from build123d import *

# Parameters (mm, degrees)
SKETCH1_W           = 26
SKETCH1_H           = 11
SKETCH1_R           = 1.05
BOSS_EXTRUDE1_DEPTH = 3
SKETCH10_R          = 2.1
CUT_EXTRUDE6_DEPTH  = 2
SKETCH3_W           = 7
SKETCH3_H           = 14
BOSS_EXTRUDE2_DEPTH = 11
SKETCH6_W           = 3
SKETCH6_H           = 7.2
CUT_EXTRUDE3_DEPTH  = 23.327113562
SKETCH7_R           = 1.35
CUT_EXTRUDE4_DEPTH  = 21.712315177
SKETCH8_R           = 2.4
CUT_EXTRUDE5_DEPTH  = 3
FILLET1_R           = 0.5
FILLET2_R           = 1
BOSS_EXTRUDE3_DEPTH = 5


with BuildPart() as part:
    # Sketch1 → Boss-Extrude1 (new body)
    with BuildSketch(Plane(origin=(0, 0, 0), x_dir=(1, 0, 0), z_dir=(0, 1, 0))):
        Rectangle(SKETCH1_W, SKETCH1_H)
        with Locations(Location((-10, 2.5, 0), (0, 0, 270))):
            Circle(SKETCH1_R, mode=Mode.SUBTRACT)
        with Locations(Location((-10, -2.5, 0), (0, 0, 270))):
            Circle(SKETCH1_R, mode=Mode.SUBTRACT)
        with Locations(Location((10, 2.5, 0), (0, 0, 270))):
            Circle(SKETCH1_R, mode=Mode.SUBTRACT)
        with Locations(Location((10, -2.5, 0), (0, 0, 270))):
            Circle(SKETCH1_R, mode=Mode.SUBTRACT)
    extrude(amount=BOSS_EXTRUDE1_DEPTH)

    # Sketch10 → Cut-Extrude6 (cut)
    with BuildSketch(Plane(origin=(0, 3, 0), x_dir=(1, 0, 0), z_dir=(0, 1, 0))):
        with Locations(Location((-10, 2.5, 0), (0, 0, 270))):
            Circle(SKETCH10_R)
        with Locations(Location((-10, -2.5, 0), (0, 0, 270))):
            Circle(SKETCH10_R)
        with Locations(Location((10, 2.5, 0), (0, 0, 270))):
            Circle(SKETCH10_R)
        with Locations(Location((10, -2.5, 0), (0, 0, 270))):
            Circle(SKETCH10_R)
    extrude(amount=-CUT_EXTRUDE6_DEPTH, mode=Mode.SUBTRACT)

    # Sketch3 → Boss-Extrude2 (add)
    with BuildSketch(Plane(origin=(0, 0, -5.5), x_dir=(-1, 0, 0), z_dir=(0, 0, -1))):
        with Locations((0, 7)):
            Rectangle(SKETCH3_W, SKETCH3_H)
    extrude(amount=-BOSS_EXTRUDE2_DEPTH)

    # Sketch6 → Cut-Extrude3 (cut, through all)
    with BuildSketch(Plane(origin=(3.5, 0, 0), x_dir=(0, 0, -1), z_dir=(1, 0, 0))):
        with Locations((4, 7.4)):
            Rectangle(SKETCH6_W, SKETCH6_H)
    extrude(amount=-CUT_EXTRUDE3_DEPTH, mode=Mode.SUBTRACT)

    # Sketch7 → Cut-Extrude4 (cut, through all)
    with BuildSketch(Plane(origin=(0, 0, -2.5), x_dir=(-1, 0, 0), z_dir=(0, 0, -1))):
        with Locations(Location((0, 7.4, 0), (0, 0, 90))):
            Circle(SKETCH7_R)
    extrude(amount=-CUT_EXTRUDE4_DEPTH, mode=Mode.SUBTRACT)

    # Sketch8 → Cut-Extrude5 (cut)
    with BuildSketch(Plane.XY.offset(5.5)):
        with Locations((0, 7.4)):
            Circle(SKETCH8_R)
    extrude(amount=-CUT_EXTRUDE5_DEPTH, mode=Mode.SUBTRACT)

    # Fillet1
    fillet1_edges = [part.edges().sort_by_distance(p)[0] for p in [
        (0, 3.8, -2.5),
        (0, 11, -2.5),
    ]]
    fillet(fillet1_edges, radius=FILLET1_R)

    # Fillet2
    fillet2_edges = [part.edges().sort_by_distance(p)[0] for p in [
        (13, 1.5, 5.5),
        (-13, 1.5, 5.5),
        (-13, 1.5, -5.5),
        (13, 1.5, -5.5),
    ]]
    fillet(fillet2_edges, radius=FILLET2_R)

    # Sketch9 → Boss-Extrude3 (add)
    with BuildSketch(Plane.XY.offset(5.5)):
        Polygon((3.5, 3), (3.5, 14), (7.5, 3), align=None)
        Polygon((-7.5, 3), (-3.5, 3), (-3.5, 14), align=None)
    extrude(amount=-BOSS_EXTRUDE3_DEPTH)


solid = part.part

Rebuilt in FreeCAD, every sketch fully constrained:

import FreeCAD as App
import Part
import Sketcher

V = App.Vector


def edges_at(feature, points):
    """Names of the edges that pass closest to the given points."""
    edges = feature.Shape.Edges
    near = lambda p: min(range(len(edges)), key=lambda i: edges[i].distToShape(Part.Vertex(*p))[0])
    return sorted({f"Edge{near(p) + 1}" for p in points})

doc = App.newDocument("Part")
body = doc.addObject("PartDesign::Body", "Body")

# Sketch on XZ plane
sketch1 = body.newObject("Sketcher::SketchObject", "Sketch")
sketch1.AttachmentSupport = (doc.getObject("XZ_Plane"), [""])
sketch1.MapMode = "FlatFace"
sketch1.addGeometry(Part.LineSegment(V(-13, -5.5, 0), V(-13, 5.5, 0)), False)
sketch1.addGeometry(Part.LineSegment(V(-13, 5.5, 0), V(13, 5.5, 0)), False)
sketch1.addGeometry(Part.LineSegment(V(13, 5.5, 0), V(13, -5.5, 0)), False)
sketch1.addGeometry(Part.LineSegment(V(13, -5.5, 0), V(-13, -5.5, 0)), False)
sketch1.addGeometry(Part.Circle(V(-10, 2.5, 0), V(0, 0, 1), 1.1), False)
sketch1.addGeometry(Part.Circle(V(10, 2.5, 0), V(0, 0, 1), 1.1), False)
sketch1.addGeometry(Part.Circle(V(-10, -2.5, 0), V(0, 0, 1), 1.1), False)
sketch1.addGeometry(Part.Circle(V(10, -2.5, 0), V(0, 0, 1), 1.1), False)
sketch1.addConstraint(Sketcher.Constraint("Coincident", 0, 2, 1, 1))
sketch1.addConstraint(Sketcher.Constraint("Coincident", 1, 2, 2, 1))
sketch1.addConstraint(Sketcher.Constraint("Coincident", 2, 2, 3, 1))
sketch1.addConstraint(Sketcher.Constraint("Coincident", 3, 2, 0, 1))
sketch1.addConstraint(Sketcher.Constraint("Vertical", 0))
sketch1.addConstraint(Sketcher.Constraint("Horizontal", 1))
sketch1.addConstraint(Sketcher.Constraint("Vertical", 2))
sketch1.addConstraint(Sketcher.Constraint("Horizontal", 3))
sketch1.addConstraint(Sketcher.Constraint("Equal", 4, 5))
sketch1.addConstraint(Sketcher.Constraint("Equal", 5, 6))
sketch1.addConstraint(Sketcher.Constraint("Equal", 6, 7))
sketch1.addConstraint(Sketcher.Constraint("Symmetric", 5, 3, 6, 3, -1, 1))
sketch1.addConstraint(Sketcher.Constraint("Symmetric", 4, 3, 7, 3, -1, 1))
sketch1.addConstraint(Sketcher.Constraint("Symmetric", 0, 2, 2, 2, -1, 1))
sketch1.addConstraint(Sketcher.Constraint("Symmetric", 4, 3, 5, 3, -2))
sketch1.addConstraint(Sketcher.Constraint("Diameter", 4, 2.1))
sketch1.addConstraint(Sketcher.Constraint("DistanceX", 1, 1, 1, 2, 26.0))
sketch1.addConstraint(Sketcher.Constraint("DistanceY", 0, 1, 0, 2, 11.0))
sketch1.addConstraint(Sketcher.Constraint("DistanceX", 4, 3, -1, 1, 10.0))
sketch1.addConstraint(Sketcher.Constraint("DistanceY", 6, 3, 4, 3, 5.0))
pad1 = body.newObject("PartDesign::Pad", "Pad")
pad1.Profile = sketch1
pad1.Length = 3
pad1.Reversed = True

# Sketch on XZ plane
sketch2 = body.newObject("Sketcher::SketchObject", "Sketch001")
sketch2.AttachmentSupport = (doc.getObject("XZ_Plane"), [""])
sketch2.MapMode = "FlatFace"
sketch2.AttachmentOffset = App.Placement(V(0, 0, -3), App.Rotation())
sketch2.addGeometry(Part.Circle(V(-10, -2.5, 0), V(0, 0, 1), 2.1), False)
sketch2.addGeometry(Part.Circle(V(-10, 2.5, 0), V(0, 0, 1), 2.1), False)
sketch2.addGeometry(Part.Circle(V(10, -2.5, 0), V(0, 0, 1), 2.1), False)
sketch2.addGeometry(Part.Circle(V(10, 2.5, 0), V(0, 0, 1), 2.1), False)
sketch2.addConstraint(Sketcher.Constraint("Equal", 0, 1))
sketch2.addConstraint(Sketcher.Constraint("Equal", 1, 2))
sketch2.addConstraint(Sketcher.Constraint("Equal", 2, 3))
sketch2.addConstraint(Sketcher.Constraint("Symmetric", 1, 3, 2, 3, -1, 1))
sketch2.addConstraint(Sketcher.Constraint("Symmetric", 0, 3, 3, 3, -1, 1))
sketch2.addConstraint(Sketcher.Constraint("Symmetric", 0, 3, 2, 3, -2))
sketch2.addConstraint(Sketcher.Constraint("Diameter", 0, 4.2))
sketch2.addConstraint(Sketcher.Constraint("DistanceX", 0, 3, -1, 1, 10.0))
sketch2.addConstraint(Sketcher.Constraint("DistanceY", 0, 3, 1, 3, 5.0))
pocket1 = body.newObject("PartDesign::Pocket", "Pocket")
pocket1.Profile = sketch2
pocket1.Length = 2
pocket1.Reversed = True

# Sketch on XY plane
sketch3 = body.newObject("Sketcher::SketchObject", "Sketch002")
sketch3.AttachmentSupport = (doc.getObject("XY_Plane"), [""])
sketch3.MapMode = "FlatFace"
sketch3.AttachmentOffset = App.Placement(V(0, 0, -5.5), App.Rotation())
sketch3.addGeometry(Part.LineSegment(V(4, 14, 0), V(4, 0, 0)), False)
sketch3.addGeometry(Part.LineSegment(V(4, 0, 0), V(-4, 0, 0)), False)
sketch3.addGeometry(Part.LineSegment(V(-4, 0, 0), V(-4, 14, 0)), False)
sketch3.addGeometry(Part.LineSegment(V(-4, 14, 0), V(4, 14, 0)), False)
sketch3.addConstraint(Sketcher.Constraint("Coincident", 0, 2, 1, 1))
sketch3.addConstraint(Sketcher.Constraint("Coincident", 1, 2, 2, 1))
sketch3.addConstraint(Sketcher.Constraint("Coincident", 2, 2, 3, 1))
sketch3.addConstraint(Sketcher.Constraint("Coincident", 3, 2, 0, 1))
sketch3.addConstraint(Sketcher.Constraint("Vertical", 0))
sketch3.addConstraint(Sketcher.Constraint("Horizontal", 1))
sketch3.addConstraint(Sketcher.Constraint("Vertical", 2))
sketch3.addConstraint(Sketcher.Constraint("Horizontal", 3))
sketch3.addConstraint(Sketcher.Constraint("Symmetric", 0, 2, 1, 2, -1, 1))
sketch3.addConstraint(Sketcher.Constraint("DistanceX", 1, 2, 1, 1, 7.0))
sketch3.addConstraint(Sketcher.Constraint("DistanceY", 0, 2, 0, 1, 14.0))
pad2 = body.newObject("PartDesign::Pad", "Pad001")
pad2.Profile = sketch3
pad2.Length = 11

# Sketch on YZ plane
sketch4 = body.newObject("Sketcher::SketchObject", "Sketch003")
sketch4.AttachmentSupport = (doc.getObject("YZ_Plane"), [""])
sketch4.MapMode = "FlatFace"
sketch4.AttachmentOffset = App.Placement(V(0, 0, 3.5), App.Rotation())
sketch4.addGeometry(Part.LineSegment(V(11, -2.5, 0), V(3.8, -2.5, 0)), False)
sketch4.addGeometry(Part.LineSegment(V(3.8, -2.5, 0), V(3.8, -5.5, 0)), False)
sketch4.addGeometry(Part.LineSegment(V(3.8, -5.5, 0), V(11, -5.5, 0)), False)
sketch4.addGeometry(Part.LineSegment(V(11, -5.5, 0), V(11, -2.5, 0)), False)
sketch4.addConstraint(Sketcher.Constraint("Coincident", 0, 2, 1, 1))
sketch4.addConstraint(Sketcher.Constraint("Coincident", 1, 2, 2, 1))
sketch4.addConstraint(Sketcher.Constraint("Coincident", 2, 2, 3, 1))
sketch4.addConstraint(Sketcher.Constraint("Coincident", 3, 2, 0, 1))
sketch4.addConstraint(Sketcher.Constraint("Horizontal", 0))
sketch4.addConstraint(Sketcher.Constraint("Vertical", 1))
sketch4.addConstraint(Sketcher.Constraint("Horizontal", 2))
sketch4.addConstraint(Sketcher.Constraint("Vertical", 3))
sketch4.addConstraint(Sketcher.Constraint("DistanceY", 1, 2, 1, 1, 3.0))
sketch4.addConstraint(Sketcher.Constraint("DistanceX", 0, 2, 0, 1, 7.2))
sketch4.addConstraint(Sketcher.Constraint("DistanceX", -1, 1, 2, 2, 11.0))
sketch4.addConstraint(Sketcher.Constraint("DistanceY", 0, 2, -1, 1, 2.5))
pocket2 = body.newObject("PartDesign::Pocket", "Pocket001")
pocket2.Profile = sketch4
pocket2.Type = "ThroughAll"

# Sketch on XY plane
sketch5 = body.newObject("Sketcher::SketchObject", "Sketch004")
sketch5.AttachmentSupport = (doc.getObject("XY_Plane"), [""])
sketch5.MapMode = "FlatFace"
sketch5.AttachmentOffset = App.Placement(V(0, 0, -2.5), App.Rotation())
sketch5.addGeometry(Part.Circle(V(0, 7.4, 0), V(0, 0, 1), 1.4), False)
sketch5.addConstraint(Sketcher.Constraint("PointOnObject", 0, 3, -2))
sketch5.addConstraint(Sketcher.Constraint("Diameter", 0, 2.7))
sketch5.addConstraint(Sketcher.Constraint("DistanceY", -1, 1, 0, 3, 7.4))
pocket3 = body.newObject("PartDesign::Pocket", "Pocket002")
pocket3.Profile = sketch5
pocket3.Type = "ThroughAll"
pocket3.Reversed = True

# Sketch on XY plane
sketch6 = body.newObject("Sketcher::SketchObject", "Sketch005")
sketch6.AttachmentSupport = (doc.getObject("XY_Plane"), [""])
sketch6.MapMode = "FlatFace"
sketch6.AttachmentOffset = App.Placement(V(0, 0, 5.5), App.Rotation())
sketch6.addGeometry(Part.Circle(V(0, 7.4, 0), V(0, 0, 1), 2.4), False)
sketch6.addConstraint(Sketcher.Constraint("PointOnObject", 0, 3, -2))
sketch6.addConstraint(Sketcher.Constraint("Diameter", 0, 4.8))
sketch6.addConstraint(Sketcher.Constraint("DistanceY", -1, 1, 0, 3, 7.4))
pocket4 = body.newObject("PartDesign::Pocket", "Pocket003")
pocket4.Profile = sketch6
pocket4.Length = 3
doc.recompute()

fillet = body.newObject("PartDesign::Fillet", "Fillet")
fillet.Base = (pocket4, edges_at(pocket4, [(0, 3.8, -2.5), (0, 11, -2.5)]))
fillet.Radius = 0.5
doc.recompute()

fillet2 = body.newObject("PartDesign::Fillet", "Fillet001")
fillet2.Base = (fillet, edges_at(fillet, [
    (13, 1.5, 5.5),
    (-13, 1.5, 5.5),
    (-13, 1.5, -5.5),
    (13, 1.5, -5.5),
]))
fillet2.Radius = 1

# Sketch on XY plane
sketch7 = body.newObject("Sketcher::SketchObject", "Sketch006")
sketch7.AttachmentSupport = (doc.getObject("XY_Plane"), [""])
sketch7.MapMode = "FlatFace"
sketch7.AttachmentOffset = App.Placement(V(0, 0, 5.5), App.Rotation())
sketch7.addGeometry(Part.LineSegment(V(3.5, 14, 0), V(3.5, 3, 0)), False)
sketch7.addGeometry(Part.LineSegment(V(3.5, 3, 0), V(7.5, 3, 0)), False)
sketch7.addGeometry(Part.LineSegment(V(7.5, 3, 0), V(3.5, 14, 0)), False)
sketch7.addGeometry(Part.LineSegment(V(-7.5, 3, 0), V(-3.5, 3, 0)), False)
sketch7.addGeometry(Part.LineSegment(V(-3.5, 3, 0), V(-3.5, 14, 0)), False)
sketch7.addGeometry(Part.LineSegment(V(-3.5, 14, 0), V(-7.5, 3, 0)), False)
sketch7.addConstraint(Sketcher.Constraint("Coincident", 0, 2, 1, 1))
sketch7.addConstraint(Sketcher.Constraint("Coincident", 1, 2, 2, 1))
sketch7.addConstraint(Sketcher.Constraint("Coincident", 2, 2, 0, 1))
sketch7.addConstraint(Sketcher.Constraint("Coincident", 3, 2, 4, 1))
sketch7.addConstraint(Sketcher.Constraint("Coincident", 4, 2, 5, 1))
sketch7.addConstraint(Sketcher.Constraint("Coincident", 5, 2, 3, 1))
sketch7.addConstraint(Sketcher.Constraint("Vertical", 0))
sketch7.addConstraint(Sketcher.Constraint("Horizontal", 1))
sketch7.addConstraint(Sketcher.Constraint("Horizontal", 3))
sketch7.addConstraint(Sketcher.Constraint("Vertical", 4))
sketch7.addConstraint(Sketcher.Constraint("Symmetric", 0, 2, 3, 2, -2))
sketch7.addConstraint(Sketcher.Constraint("Horizontal", 2, 2, 4, 2))
sketch7.addConstraint(Sketcher.Constraint("Equal", 1, 3))
sketch7.addConstraint(Sketcher.Constraint("DistanceX", 1, 1, 1, 2, 4.0))
sketch7.addConstraint(Sketcher.Constraint("DistanceY", 0, 2, 0, 1, 11.0))
sketch7.addConstraint(Sketcher.Constraint("DistanceY", -1, 1, 0, 2, 3.0))
sketch7.addConstraint(Sketcher.Constraint("DistanceX", 3, 2, 0, 2, 7.0))
pad3 = body.newObject("PartDesign::Pad", "Pad002")
pad3.Profile = sketch7
pad3.Length = 5
pad3.Reversed = True

doc.recompute()
